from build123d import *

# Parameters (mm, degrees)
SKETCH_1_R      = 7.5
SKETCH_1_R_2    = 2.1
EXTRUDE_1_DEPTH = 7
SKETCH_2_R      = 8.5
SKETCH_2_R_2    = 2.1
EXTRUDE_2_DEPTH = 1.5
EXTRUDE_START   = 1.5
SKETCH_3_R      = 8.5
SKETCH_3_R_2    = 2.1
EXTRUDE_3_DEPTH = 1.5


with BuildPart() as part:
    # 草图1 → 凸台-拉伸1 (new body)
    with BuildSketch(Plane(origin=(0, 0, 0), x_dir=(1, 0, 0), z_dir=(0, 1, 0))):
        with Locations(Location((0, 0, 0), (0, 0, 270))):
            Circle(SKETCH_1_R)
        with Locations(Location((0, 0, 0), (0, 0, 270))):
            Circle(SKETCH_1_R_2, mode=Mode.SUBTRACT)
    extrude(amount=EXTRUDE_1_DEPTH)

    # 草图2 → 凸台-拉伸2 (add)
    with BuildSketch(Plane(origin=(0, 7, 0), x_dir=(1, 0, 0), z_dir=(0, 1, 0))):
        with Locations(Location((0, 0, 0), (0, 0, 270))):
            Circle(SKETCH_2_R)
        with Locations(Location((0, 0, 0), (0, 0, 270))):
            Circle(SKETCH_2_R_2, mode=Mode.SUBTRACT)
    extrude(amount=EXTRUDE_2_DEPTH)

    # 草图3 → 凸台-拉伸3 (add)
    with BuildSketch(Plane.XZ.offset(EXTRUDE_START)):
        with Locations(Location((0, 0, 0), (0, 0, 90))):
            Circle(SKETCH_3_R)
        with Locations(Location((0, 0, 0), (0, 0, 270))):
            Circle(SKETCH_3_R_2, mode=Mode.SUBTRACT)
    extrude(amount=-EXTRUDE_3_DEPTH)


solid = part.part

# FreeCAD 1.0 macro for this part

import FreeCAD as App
import Part
import Sketcher
from FreeCAD import Vector
Q = App.Units.Quantity

doc = App.newDocument("Part")
body = doc.addObject("PartDesign::Body", "Body")

# Sketch on XZ plane
sketch1 = body.newObject("Sketcher::SketchObject", "Sketch")
sketch1.AttachmentSupport = (doc.getObject("XZ_Plane"), [""])
sketch1.MapMode = "FlatFace"
sketch1.addGeometry(Part.Circle(Vector(0, 0, 0), Vector(0, 0, 1), 7.5), False)
sketch1.addGeometry(Part.Circle(Vector(0, 0, 0), Vector(0, 0, 1), 2.1), False)
sketch1.addConstraint(Sketcher.Constraint("Coincident", 0, 3, -1, 1))
sketch1.addConstraint(Sketcher.Constraint("Coincident", 1, 3, -1, 1))
sketch1.addConstraint(Sketcher.Constraint("Diameter", 0, Q("15 mm")))
sketch1.addConstraint(Sketcher.Constraint("Diameter", 1, Q("4.2 mm")))
pad1 = body.newObject("PartDesign::Pad", "Pad")
pad1.Profile = sketch1
pad1.Length = 7
pad1.Reversed = True

# Sketch on XZ plane
sketch2 = body.newObject("Sketcher::SketchObject", "Sketch001")
sketch2.AttachmentSupport = (doc.getObject("XZ_Plane"), [""])
sketch2.MapMode = "FlatFace"
sketch2.AttachmentOffset = App.Placement(Vector(0, 0, -7), App.Rotation())
sketch2.addGeometry(Part.Circle(Vector(0, 0, 0), Vector(0, 0, 1), 8.5), False)
sketch2.addGeometry(Part.Circle(Vector(0, 0, 0), Vector(0, 0, 1), 2.1), False)
sketch2.addConstraint(Sketcher.Constraint("Coincident", 0, 3, -1, 1))
sketch2.addConstraint(Sketcher.Constraint("Coincident", 1, 3, -1, 1))
sketch2.addConstraint(Sketcher.Constraint("Diameter", 0, Q("17 mm")))
sketch2.addConstraint(Sketcher.Constraint("Diameter", 1, Q("4.2 mm")))
pad2 = body.newObject("PartDesign::Pad", "Pad001")
pad2.Profile = sketch2
pad2.Length = 1.5
pad2.Reversed = True

# Sketch on XZ plane
sketch3 = body.newObject("Sketcher::SketchObject", "Sketch002")
sketch3.AttachmentSupport = (doc.getObject("XZ_Plane"), [""])
sketch3.MapMode = "FlatFace"
sketch3.AttachmentOffset = App.Placement(Vector(0, 0, 1.5), App.Rotation())
sketch3.addGeometry(Part.Circle(Vector(0, 0, 0), Vector(0, 0, 1), 8.5), False)
sketch3.addGeometry(Part.Circle(Vector(0, 0, 0), Vector(0, 0, 1), 2.1), False)
sketch3.addConstraint(Sketcher.Constraint("Coincident", 0, 3, -1, 1))
sketch3.addConstraint(Sketcher.Constraint("Coincident", 1, 3, -1, 1))
sketch3.addConstraint(Sketcher.Constraint("Diameter", 0, Q("17 mm")))
sketch3.addConstraint(Sketcher.Constraint("Diameter", 1, Q("4.2 mm")))
pad3 = body.newObject("PartDesign::Pad", "Pad002")
pad3.Profile = sketch3
pad3.Length = 1.5
pad3.Reversed = True

doc.recompute()
